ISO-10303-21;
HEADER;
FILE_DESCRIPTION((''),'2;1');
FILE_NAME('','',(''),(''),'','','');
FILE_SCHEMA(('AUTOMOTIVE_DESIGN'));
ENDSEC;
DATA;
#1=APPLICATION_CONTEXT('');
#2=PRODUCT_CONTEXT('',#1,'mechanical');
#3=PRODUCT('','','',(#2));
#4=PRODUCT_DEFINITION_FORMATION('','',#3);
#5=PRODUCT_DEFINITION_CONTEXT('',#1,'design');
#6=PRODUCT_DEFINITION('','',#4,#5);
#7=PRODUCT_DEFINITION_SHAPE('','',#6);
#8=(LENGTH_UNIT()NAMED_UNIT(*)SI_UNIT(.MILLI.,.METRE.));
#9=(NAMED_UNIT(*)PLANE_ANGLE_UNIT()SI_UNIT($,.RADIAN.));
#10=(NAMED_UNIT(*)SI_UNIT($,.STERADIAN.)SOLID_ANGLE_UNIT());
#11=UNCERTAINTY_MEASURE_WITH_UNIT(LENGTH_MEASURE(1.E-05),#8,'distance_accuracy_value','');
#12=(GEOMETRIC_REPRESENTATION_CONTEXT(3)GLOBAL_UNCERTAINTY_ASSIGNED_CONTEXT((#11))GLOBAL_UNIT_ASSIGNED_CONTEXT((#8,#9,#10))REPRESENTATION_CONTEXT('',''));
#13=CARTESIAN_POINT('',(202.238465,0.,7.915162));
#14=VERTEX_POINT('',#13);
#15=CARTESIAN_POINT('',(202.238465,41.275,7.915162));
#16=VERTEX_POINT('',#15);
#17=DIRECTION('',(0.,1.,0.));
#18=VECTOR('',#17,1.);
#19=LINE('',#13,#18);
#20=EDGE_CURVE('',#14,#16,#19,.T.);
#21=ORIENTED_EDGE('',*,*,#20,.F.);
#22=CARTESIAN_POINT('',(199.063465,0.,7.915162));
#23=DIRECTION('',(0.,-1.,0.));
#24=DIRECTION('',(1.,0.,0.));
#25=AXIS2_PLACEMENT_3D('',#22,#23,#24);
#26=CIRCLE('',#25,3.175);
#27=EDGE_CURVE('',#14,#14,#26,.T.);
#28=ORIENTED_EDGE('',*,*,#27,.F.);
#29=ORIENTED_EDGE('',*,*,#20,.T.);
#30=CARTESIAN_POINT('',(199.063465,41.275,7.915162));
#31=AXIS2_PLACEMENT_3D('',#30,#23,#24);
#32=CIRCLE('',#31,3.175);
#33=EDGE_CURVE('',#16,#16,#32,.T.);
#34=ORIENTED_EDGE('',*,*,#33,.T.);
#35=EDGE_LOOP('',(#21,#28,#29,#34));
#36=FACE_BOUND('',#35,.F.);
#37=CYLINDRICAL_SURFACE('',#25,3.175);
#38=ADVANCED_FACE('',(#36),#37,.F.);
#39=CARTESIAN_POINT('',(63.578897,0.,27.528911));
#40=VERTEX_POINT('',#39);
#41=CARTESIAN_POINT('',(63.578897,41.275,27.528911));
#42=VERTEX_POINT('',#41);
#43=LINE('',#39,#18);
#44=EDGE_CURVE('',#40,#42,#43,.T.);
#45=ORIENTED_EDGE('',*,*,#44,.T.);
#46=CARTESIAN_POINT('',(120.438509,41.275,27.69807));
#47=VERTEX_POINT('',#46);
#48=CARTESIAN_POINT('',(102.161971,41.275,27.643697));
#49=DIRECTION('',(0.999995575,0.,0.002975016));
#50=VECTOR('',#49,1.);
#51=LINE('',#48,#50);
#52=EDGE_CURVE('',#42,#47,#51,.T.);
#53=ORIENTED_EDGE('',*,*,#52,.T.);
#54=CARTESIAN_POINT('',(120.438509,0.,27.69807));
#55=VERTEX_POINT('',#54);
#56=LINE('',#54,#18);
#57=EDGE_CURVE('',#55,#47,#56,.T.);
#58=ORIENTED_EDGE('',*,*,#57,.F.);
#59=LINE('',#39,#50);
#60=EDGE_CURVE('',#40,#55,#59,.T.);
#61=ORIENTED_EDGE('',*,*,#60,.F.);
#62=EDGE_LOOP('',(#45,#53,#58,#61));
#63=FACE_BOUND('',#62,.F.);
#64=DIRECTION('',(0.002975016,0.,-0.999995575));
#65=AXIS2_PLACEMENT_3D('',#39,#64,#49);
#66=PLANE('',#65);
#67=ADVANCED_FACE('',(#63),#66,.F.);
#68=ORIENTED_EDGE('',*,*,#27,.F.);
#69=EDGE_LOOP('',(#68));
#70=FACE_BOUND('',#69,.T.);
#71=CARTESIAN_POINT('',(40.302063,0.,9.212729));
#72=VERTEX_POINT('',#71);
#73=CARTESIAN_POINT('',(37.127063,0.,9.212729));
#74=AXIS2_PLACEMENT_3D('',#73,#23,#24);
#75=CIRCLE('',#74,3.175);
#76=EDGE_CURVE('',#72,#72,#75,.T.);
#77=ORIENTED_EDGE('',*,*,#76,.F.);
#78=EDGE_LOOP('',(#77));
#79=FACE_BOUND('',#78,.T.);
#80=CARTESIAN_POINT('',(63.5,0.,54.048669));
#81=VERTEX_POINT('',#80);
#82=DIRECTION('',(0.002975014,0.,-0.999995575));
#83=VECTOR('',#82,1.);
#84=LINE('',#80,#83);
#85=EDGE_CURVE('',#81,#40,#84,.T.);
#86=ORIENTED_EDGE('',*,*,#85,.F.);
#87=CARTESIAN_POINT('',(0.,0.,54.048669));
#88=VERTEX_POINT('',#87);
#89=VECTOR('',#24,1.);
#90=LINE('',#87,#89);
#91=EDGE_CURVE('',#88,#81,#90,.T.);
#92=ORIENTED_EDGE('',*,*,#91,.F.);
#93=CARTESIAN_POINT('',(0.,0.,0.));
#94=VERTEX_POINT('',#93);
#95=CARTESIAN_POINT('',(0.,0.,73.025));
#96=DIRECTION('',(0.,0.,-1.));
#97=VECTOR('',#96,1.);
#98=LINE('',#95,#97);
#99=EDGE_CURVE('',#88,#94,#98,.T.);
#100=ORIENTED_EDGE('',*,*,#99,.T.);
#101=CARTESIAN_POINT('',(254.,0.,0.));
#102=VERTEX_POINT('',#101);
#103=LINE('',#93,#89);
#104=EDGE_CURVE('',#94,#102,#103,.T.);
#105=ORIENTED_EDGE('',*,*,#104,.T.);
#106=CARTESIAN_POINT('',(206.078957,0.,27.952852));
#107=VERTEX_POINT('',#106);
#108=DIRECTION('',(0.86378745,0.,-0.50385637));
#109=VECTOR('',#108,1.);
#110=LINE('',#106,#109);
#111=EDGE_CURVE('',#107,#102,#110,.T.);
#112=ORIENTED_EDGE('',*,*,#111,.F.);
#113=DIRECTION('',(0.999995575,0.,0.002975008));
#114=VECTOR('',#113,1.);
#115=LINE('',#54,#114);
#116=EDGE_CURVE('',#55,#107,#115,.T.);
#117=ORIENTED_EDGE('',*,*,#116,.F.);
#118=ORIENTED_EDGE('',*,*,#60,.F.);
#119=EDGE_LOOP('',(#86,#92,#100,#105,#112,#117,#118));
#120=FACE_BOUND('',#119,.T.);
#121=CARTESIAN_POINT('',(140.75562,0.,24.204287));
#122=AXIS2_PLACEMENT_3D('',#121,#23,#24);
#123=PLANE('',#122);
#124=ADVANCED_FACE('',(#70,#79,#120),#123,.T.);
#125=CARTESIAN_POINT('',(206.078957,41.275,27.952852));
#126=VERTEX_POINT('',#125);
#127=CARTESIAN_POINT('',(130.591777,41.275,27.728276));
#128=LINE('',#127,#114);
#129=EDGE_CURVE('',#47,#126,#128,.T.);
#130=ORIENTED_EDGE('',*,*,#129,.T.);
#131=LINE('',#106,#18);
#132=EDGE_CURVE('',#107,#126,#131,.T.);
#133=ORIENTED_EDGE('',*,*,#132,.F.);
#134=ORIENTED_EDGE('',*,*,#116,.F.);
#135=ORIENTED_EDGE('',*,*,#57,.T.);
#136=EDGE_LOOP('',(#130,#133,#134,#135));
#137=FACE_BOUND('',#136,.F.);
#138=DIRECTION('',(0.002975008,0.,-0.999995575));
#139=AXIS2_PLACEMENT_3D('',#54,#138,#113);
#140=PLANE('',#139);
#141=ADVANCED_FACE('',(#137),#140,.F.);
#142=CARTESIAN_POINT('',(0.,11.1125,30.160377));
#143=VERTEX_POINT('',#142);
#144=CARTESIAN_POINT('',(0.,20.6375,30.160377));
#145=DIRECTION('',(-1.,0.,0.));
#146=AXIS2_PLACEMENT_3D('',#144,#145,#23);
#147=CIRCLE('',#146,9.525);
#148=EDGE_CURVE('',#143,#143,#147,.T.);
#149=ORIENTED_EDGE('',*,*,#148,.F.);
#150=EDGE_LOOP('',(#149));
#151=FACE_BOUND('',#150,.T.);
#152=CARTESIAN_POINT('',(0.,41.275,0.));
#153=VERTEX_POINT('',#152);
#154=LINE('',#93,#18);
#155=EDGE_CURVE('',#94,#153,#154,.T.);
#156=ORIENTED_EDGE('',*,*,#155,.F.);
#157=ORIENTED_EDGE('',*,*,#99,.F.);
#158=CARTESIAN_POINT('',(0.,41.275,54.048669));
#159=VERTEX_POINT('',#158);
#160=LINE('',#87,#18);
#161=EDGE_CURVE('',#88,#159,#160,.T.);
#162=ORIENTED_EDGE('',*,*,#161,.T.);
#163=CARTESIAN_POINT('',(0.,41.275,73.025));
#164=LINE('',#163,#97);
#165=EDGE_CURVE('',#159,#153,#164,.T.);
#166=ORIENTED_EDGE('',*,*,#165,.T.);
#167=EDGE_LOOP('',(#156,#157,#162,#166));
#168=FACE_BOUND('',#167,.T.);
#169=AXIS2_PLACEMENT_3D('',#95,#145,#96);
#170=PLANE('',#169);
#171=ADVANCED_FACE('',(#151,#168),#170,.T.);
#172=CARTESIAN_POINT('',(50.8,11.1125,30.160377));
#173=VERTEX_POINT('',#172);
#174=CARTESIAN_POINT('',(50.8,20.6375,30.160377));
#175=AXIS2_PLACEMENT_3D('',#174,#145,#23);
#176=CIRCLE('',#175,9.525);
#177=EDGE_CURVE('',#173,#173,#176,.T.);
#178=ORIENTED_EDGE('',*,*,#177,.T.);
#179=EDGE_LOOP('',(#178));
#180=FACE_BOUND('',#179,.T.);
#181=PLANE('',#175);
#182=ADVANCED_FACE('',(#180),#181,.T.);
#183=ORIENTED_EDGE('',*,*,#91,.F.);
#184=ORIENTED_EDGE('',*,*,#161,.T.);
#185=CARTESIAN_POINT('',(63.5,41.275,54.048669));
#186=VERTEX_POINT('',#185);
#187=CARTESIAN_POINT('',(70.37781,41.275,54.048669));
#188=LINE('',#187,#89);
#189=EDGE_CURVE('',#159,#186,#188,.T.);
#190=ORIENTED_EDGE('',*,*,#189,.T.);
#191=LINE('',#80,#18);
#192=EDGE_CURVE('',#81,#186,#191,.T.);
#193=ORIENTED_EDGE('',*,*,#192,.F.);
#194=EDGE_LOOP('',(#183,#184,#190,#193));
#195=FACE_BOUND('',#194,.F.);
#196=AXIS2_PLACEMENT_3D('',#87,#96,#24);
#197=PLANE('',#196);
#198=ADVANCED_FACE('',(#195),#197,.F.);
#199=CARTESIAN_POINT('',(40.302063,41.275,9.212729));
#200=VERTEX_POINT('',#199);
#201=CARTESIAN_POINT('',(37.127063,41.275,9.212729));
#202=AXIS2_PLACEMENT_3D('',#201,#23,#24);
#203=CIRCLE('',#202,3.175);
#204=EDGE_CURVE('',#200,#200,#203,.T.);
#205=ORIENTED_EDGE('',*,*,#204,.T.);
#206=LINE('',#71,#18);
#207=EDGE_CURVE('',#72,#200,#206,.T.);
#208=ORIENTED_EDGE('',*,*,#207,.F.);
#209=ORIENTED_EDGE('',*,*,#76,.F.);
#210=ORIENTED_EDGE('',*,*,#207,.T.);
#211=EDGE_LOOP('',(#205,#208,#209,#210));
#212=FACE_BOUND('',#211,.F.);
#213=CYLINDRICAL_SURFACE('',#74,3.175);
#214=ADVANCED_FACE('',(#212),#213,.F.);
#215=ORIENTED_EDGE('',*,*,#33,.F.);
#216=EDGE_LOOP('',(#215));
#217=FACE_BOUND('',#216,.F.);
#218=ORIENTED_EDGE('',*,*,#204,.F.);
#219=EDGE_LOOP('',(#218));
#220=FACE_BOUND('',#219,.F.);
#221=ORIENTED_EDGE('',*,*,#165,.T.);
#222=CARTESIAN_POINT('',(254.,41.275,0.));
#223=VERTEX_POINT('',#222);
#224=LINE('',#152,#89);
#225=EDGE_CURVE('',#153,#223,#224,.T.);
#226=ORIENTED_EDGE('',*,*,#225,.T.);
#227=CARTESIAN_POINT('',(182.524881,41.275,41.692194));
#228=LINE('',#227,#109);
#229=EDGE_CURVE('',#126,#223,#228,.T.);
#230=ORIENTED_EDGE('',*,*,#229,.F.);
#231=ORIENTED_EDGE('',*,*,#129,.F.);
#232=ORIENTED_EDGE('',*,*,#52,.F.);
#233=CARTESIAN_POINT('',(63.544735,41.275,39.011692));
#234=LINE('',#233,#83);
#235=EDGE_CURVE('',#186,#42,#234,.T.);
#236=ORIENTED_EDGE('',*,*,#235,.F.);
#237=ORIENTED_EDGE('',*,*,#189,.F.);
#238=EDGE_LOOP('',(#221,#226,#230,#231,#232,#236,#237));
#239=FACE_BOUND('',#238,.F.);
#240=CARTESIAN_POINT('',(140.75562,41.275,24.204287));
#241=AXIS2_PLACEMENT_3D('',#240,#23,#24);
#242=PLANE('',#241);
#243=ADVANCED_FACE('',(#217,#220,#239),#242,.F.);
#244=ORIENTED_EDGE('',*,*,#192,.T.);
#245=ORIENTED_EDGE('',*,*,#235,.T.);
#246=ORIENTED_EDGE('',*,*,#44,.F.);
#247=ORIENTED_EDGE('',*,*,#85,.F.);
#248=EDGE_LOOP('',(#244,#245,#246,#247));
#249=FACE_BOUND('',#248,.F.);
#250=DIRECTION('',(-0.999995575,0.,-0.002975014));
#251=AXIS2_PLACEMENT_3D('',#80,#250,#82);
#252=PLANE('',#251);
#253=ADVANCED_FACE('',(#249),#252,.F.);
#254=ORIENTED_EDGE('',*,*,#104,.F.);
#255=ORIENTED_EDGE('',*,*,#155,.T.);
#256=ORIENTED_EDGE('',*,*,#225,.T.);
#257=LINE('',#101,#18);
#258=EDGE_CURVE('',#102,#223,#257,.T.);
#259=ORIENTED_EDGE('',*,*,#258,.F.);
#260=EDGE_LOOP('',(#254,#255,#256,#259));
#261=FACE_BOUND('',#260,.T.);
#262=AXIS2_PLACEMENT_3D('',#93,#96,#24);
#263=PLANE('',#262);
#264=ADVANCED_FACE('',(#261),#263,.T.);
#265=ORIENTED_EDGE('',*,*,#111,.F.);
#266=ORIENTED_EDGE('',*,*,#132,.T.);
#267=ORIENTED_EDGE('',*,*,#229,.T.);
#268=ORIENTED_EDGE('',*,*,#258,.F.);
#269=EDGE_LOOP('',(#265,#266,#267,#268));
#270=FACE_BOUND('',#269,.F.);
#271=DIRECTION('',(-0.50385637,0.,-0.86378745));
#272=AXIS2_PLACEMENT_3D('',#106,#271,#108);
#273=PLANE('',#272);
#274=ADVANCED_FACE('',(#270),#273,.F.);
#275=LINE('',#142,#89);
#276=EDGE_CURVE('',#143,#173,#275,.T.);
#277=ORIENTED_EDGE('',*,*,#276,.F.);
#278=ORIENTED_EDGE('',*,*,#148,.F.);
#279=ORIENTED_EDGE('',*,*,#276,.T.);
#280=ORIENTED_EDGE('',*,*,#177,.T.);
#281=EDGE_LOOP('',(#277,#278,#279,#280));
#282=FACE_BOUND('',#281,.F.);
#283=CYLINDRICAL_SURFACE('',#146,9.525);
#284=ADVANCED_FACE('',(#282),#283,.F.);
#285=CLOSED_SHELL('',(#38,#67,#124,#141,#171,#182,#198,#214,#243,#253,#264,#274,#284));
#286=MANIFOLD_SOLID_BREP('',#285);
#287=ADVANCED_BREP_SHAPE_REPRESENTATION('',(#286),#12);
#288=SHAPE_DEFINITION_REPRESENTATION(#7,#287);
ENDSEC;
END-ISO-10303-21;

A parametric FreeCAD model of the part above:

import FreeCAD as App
import Part
import Sketcher

V = App.Vector
Q = App.Units.Quantity

doc = App.newDocument("Part")
params = doc.addObject("Spreadsheet::Sheet", "Params")
for row, (alias, value) in enumerate([
    ("sketch1_width", "12 in"),
    ("sketch1_height", "0.75 in"),
    ("sketch1_height2", "2.875 in"),
    ("pad1_length", "1.625 in"),
    ("sketch2_diameter", "0.75 in"),
    ("pocket1_length", "2 in"),
    ("sketch3_height", "0.75 in"),
    ("pocket2_length", "2 in"),
    ("pocket3_length", "2 in"),
    ("sketch5_width", "2 in"),
    ("pocket4_length", "2 in"),
    ("sketch6_diameter", "0.25 in"),
    ("pocket5_length", "9 in"),
    ("sketch7_diameter", "0.25 in"),
    ("pocket6_length", "9 in"),
], start=1):
    params.set(f"A{row}", alias)
    params.set(f"B{row}", "=" + value)
    params.setAlias(f"B{row}", alias)

body = doc.addObject("PartDesign::Body", "Body")

sketch1 = doc.addObject("Sketcher::SketchObject", "Sketch")
body.addObject(sketch1)
sketch1.AttachmentSupport = (doc.XZ_Plane, [""])
sketch1.MapMode = "FlatFace"
sketch1.addGeometry(Part.LineSegment(V(304.8, 19.05, 0), V(0, 73.025, 0)), False)
sketch1.addGeometry(Part.LineSegment(V(0, 73.025, 0), V(0, 0, 0)), False)
sketch1.addGeometry(Part.LineSegment(V(0, 0, 0), V(304.8, 0, 0)), False)
sketch1.addGeometry(Part.LineSegment(V(304.8, 0, 0), V(304.8, 19.05, 0)), False)
sketch1.addConstraint(Sketcher.Constraint("Coincident", 0, 2, 1, 1))
sketch1.addConstraint(Sketcher.Constraint("Coincident", 1, 2, 2, 1))
sketch1.addConstraint(Sketcher.Constraint("Coincident", 2, 2, 3, 1))
sketch1.addConstraint(Sketcher.Constraint("Coincident", 3, 2, 0, 1))
sketch1.addConstraint(Sketcher.Constraint("Vertical", 1))
sketch1.addConstraint(Sketcher.Constraint("Horizontal", 2))
sketch1.addConstraint(Sketcher.Constraint("Vertical", 3))
sketch1.addConstraint(Sketcher.Constraint("Coincident", 1, 2, -1, 1))
sketch1.addConstraint(Sketcher.Constraint("DistanceX", 2, 1, 2, 2, Q("12 in")))
sketch1.addConstraint(Sketcher.Constraint("DistanceY", 3, 1, 3, 2, Q("0.75 in")))
sketch1.addConstraint(Sketcher.Constraint("DistanceY", 1, 2, 1, 1, Q("2.875 in")))
sketch1.setExpression("Constraints[8]", "Params.sketch1_width")
sketch1.setExpression("Constraints[9]", "Params.sketch1_height")
sketch1.setExpression("Constraints[10]", "Params.sketch1_height2")
pad1 = doc.addObject("PartDesign::Pad", "Pad")
body.addObject(pad1)
pad1.Profile = sketch1
pad1.setExpression("Length", "Params.pad1_length")
pad1.Reversed = True

sketch2 = doc.addObject("Sketcher::SketchObject", "Sketch001")
body.addObject(sketch2)
sketch2.AttachmentSupport = (doc.YZ_Plane, [""])
sketch2.MapMode = "FlatFace"
sketch2.addGeometry(Part.Circle(V(20.6375, 30.160377, 0), V(0, 0, 1), 9.525), False)
sketch2.addConstraint(Sketcher.Constraint("Diameter", 0, Q("0.75 in")))
sketch2.addConstraint(Sketcher.Constraint("DistanceX", -1, 1, 0, 3, Q("0.8125 in")))
sketch2.addConstraint(Sketcher.Constraint("DistanceY", -1, 1, 0, 3, 30.160377))
sketch2.setExpression("Constraints[0]", "Params.sketch2_diameter")
pocket1 = doc.addObject("PartDesign::Pocket", "Pocket")
body.addObject(pocket1)
pocket1.Profile = sketch2
pocket1.setExpression("Length", "Params.pocket1_length")
pocket1.Reversed = True

sketch3 = doc.addObject("Sketcher::SketchObject", "Sketch002")
body.addObject(sketch3)
sketch3.AttachmentSupport = (doc.XZ_Plane, [""])
sketch3.MapMode = "FlatFace"
sketch3.addGeometry(Part.LineSegment(V(0, 73.025, 0), V(0, 54.048669, 0)), False)
sketch3.addGeometry(Part.LineSegment(V(0, 54.048669, 0), V(107.16046, 54.048669, 0)), False)
sketch3.addGeometry(Part.LineSegment(V(107.16046, 54.048669, 0), V(0, 73.025, 0)), False)
sketch3.addGeometry(Part.LineSegment(V(253.724616, 28.094599, 0), V(107.16046, 54.048669, 0)), False)
sketch3.addGeometry(Part.LineSegment(V(107.16046, 54.048669, 0), V(120.438509, 27.69807, 0)), False)
sketch3.addGeometry(Part.LineSegment(V(120.438509, 27.69807, 0), V(253.724616, 28.094599, 0)), False)
sketch3.addGeometry(Part.LineSegment(V(304.8, 19.05, 0), V(253.724616, 28.094599, 0)), False)
sketch3.addGeometry(Part.LineSegment(V(253.724616, 28.094599, 0), V(304.8, 0, 0)), False)
sketch3.addGeometry(Part.LineSegment(V(304.8, 0, 0), V(304.8, 19.05, 0)), False)
sketch3.addConstraint(Sketcher.Constraint("Coincident", 0, 2, 1, 1))
sketch3.addConstraint(Sketcher.Constraint("Coincident", 1, 2, 2, 1))
sketch3.addConstraint(Sketcher.Constraint("Coincident", 2, 2, 0, 1))
sketch3.addConstraint(Sketcher.Constraint("Coincident", 3, 2, 4, 1))
sketch3.addConstraint(Sketcher.Constraint("Coincident", 4, 2, 5, 1))
sketch3.addConstraint(Sketcher.Constraint("Coincident", 5, 2, 3, 1))
sketch3.addConstraint(Sketcher.Constraint("Coincident", 6, 2, 7, 1))
sketch3.addConstraint(Sketcher.Constraint("Coincident", 7, 2, 8, 1))
sketch3.addConstraint(Sketcher.Constraint("Coincident", 8, 2, 6, 1))
sketch3.addConstraint(Sketcher.Constraint("Vertical", 0))
sketch3.addConstraint(Sketcher.Constraint("Horizontal", 1))
sketch3.addConstraint(Sketcher.Constraint("Vertical", 8))
sketch3.addConstraint(Sketcher.Constraint("Coincident", 3, 2, 1, 2))
sketch3.addConstraint(Sketcher.Constraint("Coincident", 6, 2, 5, 2))
sketch3.addConstraint(Sketcher.Constraint("PointOnObject", 0, 2, -2))
sketch3.addConstraint(Sketcher.Constraint("PointOnObject", 7, 2, -1))
sketch3.addConstraint(Sketcher.Constraint("Parallel", 2, 3))
sketch3.addConstraint(Sketcher.Constraint("Parallel", 3, 6))
sketch3.addConstraint(Sketcher.Constraint("DistanceX", -1, 1, 7, 2, Q("12 in")))
sketch3.addConstraint(Sketcher.Constraint("DistanceY", 8, 1, 8, 2, Q("0.75 in")))
sketch3.addConstraint(Sketcher.Constraint("DistanceY", -1, 1, 2, 2, Q("2.875 in")))
sketch3.addConstraint(Sketcher.Constraint("DistanceX", 1, 1, 1, 2, 107.16046))
sketch3.addConstraint(Sketcher.Constraint("DistanceY", -1, 1, 5, 2, 28.094599))
sketch3.addConstraint(Sketcher.Constraint("DistanceY", 4, 2, 1, 2, 26.350599))
sketch3.addConstraint(Sketcher.Constraint("Distance", 4, 29.506959))
sketch3.setExpression("Constraints[19]", "Params.sketch3_height")
pocket2 = doc.addObject("PartDesign::Pocket", "Pocket001")
body.addObject(pocket2)
pocket2.Profile = sketch3
pocket2.setExpression("Length", "Params.pocket2_length")

sketch4 = doc.addObject("Sketcher::SketchObject", "Sketch003")
body.addObject(sketch4)
sketch4.AttachmentSupport = (doc.XZ_Plane, [""])
sketch4.MapMode = "FlatFace"
sketch4.addGeometry(Part.LineSegment(V(63.578897, 27.528911, 0), V(120.438509, 27.69807, 0)), False)
sketch4.addGeometry(Part.LineSegment(V(120.438509, 27.69807, 0), V(107.16046, 54.048669, 0)), False)
sketch4.addGeometry(Part.LineSegment(V(107.16046, 54.048669, 0), V(63.5, 54.048669, 0)), False)
sketch4.addGeometry(Part.LineSegment(V(63.5, 54.048669, 0), V(63.578897, 27.528911, 0)), False)
sketch4.addConstraint(Sketcher.Constraint("Coincident", 0, 2, 1, 1))
sketch4.addConstraint(Sketcher.Constraint("Coincident", 1, 2, 2, 1))
sketch4.addConstraint(Sketcher.Constraint("Coincident", 2, 2, 3, 1))
sketch4.addConstraint(Sketcher.Constraint("Coincident", 3, 2, 0, 1))
sketch4.addConstraint(Sketcher.Constraint("Horizontal", 2))
sketch4.addConstraint(Sketcher.Constraint("Perpendicular", 0, 3))
sketch4.addConstraint(Sketcher.Constraint("DistanceX", -1, 1, 2, 2, Q("2.5 in")))
sketch4.addConstraint(Sketcher.Constraint("DistanceX", 2, 2, 2, 1, 43.66046))
sketch4.addConstraint(Sketcher.Constraint("DistanceY", 0, 2, 1, 2, 26.350599))
sketch4.addConstraint(Sketcher.Constraint("Distance", 1, 29.506959))
sketch4.addConstraint(Sketcher.Constraint("DistanceY", -1, 1, 0, 2, 27.69807))
sketch4.addConstraint(Sketcher.Constraint("DistanceY", -1, 1, 3, 2, 27.528911))
pocket3 = doc.addObject("PartDesign::Pocket", "Pocket002")
body.addObject(pocket3)
pocket3.Profile = sketch4
pocket3.setExpression("Length", "Params.pocket3_length")

sketch5 = doc.addObject("Sketcher::SketchObject", "Sketch004")
body.addObject(sketch5)
sketch5.AttachmentSupport = (doc.XZ_Plane, [""])
sketch5.MapMode = "FlatFace"
sketch5.addGeometry(Part.LineSegment(V(254, 0, 0), V(304.8, 0, 0)), False)
sketch5.addGeometry(Part.LineSegment(V(304.8, 0, 0), V(253.724616, 28.094599, 0)), False)
sketch5.addGeometry(Part.LineSegment(V(253.724616, 28.094599, 0), V(206.078957, 27.952852, 0)), False)
sketch5.addGeometry(Part.LineSegment(V(206.078957, 27.952852, 0), V(254, 0, 0)), False)
sketch5.addConstraint(Sketcher.Constraint("Coincident", 0, 2, 1, 1))
sketch5.addConstraint(Sketcher.Constraint("Coincident", 1, 2, 2, 1))
sketch5.addConstraint(Sketcher.Constraint("Coincident", 2, 2, 3, 1))
sketch5.addConstraint(Sketcher.Constraint("Coincident", 3, 2, 0, 1))
sketch5.addConstraint(Sketcher.Constraint("Horizontal", 0))
sketch5.addConstraint(Sketcher.Constraint("PointOnObject", 0, 2, -1))
sketch5.addConstraint(Sketcher.Constraint("DistanceX", 0, 1, 0, 2, Q("2 in")))
sketch5.addConstraint(Sketcher.Constraint("DistanceX", -1, 1, 0, 2, Q("12 in")))
sketch5.addConstraint(Sketcher.Constraint("DistanceY", -1, 1, 1, 2, 28.094599))
sketch5.addConstraint(Sketcher.Constraint("Distance", 1, 58.292378))
sketch5.addConstraint(Sketcher.Constraint("Distance", 2, 47.64587))
sketch5.addConstraint(Sketcher.Constraint("Distance", 3, 55.477818))
sketch5.setExpression("Constraints[6]", "Params.sketch5_width")
pocket4 = doc.addObject("PartDesign::Pocket", "Pocket003")
body.addObject(pocket4)
pocket4.Profile = sketch5
pocket4.setExpression("Length", "Params.pocket4_length")

sketch6 = doc.addObject("Sketcher::SketchObject", "Sketch005")
body.addObject(sketch6)
sketch6.AttachmentSupport = (doc.XZ_Plane, [""])
sketch6.MapMode = "FlatFace"
sketch6.addGeometry(Part.Circle(V(37.127063, 9.212729, 0), V(0, 0, 1), 3.175), False)
sketch6.addGeometry(Part.Circle(V(289.942942, 6.520301, 0), V(0, 0, 1), 3.361139), False)
sketch6.addConstraint(Sketcher.Constraint("Diameter", 0, Q("0.25 in")))
sketch6.addConstraint(Sketcher.Constraint("Diameter", 1, 6.722278))
sketch6.addConstraint(Sketcher.Constraint("DistanceY", -1, 1, 1, 3, 6.520301))
sketch6.addConstraint(Sketcher.Constraint("DistanceY", -1, 1, 0, 3, 9.212729))
sketch6.addConstraint(Sketcher.Constraint("DistanceX", -1, 1, 1, 3, 289.942942))
sketch6.addConstraint(Sketcher.Constraint("DistanceX", 0, 3, 1, 3, 252.815879))
sketch6.setExpression("Constraints[0]", "Params.sketch6_diameter")
pocket5 = doc.addObject("PartDesign::Pocket", "Pocket004")
body.addObject(pocket5)
pocket5.Profile = sketch6
pocket5.setExpression("Length", "Params.pocket5_length")

sketch7 = doc.addObject("Sketcher::SketchObject", "Sketch006")
body.addObject(sketch7)
sketch7.AttachmentSupport = (doc.XZ_Plane, [""])
sketch7.MapMode = "FlatFace"
sketch7.addGeometry(Part.Circle(V(37.127063, 9.212729, 0), V(0, 0, 1), 3.175), False)
sketch7.addGeometry(Part.Circle(V(289.942942, 6.520301, 0), V(0, 0, 1), 3.361139), False)
sketch7.addGeometry(Part.Circle(V(199.063465, 7.915162, 0), V(0, 0, 1), 3.175), False)
sketch7.addConstraint(Sketcher.Constraint("Equal", 0, 2))
sketch7.addConstraint(Sketcher.Constraint("Diameter", 0, Q("0.25 in")))
sketch7.addConstraint(Sketcher.Constraint("Diameter", 1, 6.722278))
sketch7.addConstraint(Sketcher.Constraint("DistanceY", -1, 1, 1, 3, 6.520301))
sketch7.addConstraint(Sketcher.Constraint("DistanceY", -1, 1, 0, 3, 9.212729))
sketch7.addConstraint(Sketcher.Constraint("DistanceX", -1, 1, 1, 3, 289.942942))
sketch7.addConstraint(Sketcher.Constraint("DistanceY", -1, 1, 2, 3, 7.915162))
sketch7.addConstraint(Sketcher.Constraint("DistanceX", 0, 3, 1, 3, 252.815879))
sketch7.addConstraint(Sketcher.Constraint("DistanceX", -1, 1, 2, 3, 199.063465))
sketch7.setExpression("Constraints[1]", "Params.sketch7_diameter")
pocket6 = doc.addObject("PartDesign::Pocket", "Pocket005")
body.addObject(pocket6)
pocket6.Profile = sketch7
pocket6.setExpression("Length", "Params.pocket6_length")

doc.recompute()
